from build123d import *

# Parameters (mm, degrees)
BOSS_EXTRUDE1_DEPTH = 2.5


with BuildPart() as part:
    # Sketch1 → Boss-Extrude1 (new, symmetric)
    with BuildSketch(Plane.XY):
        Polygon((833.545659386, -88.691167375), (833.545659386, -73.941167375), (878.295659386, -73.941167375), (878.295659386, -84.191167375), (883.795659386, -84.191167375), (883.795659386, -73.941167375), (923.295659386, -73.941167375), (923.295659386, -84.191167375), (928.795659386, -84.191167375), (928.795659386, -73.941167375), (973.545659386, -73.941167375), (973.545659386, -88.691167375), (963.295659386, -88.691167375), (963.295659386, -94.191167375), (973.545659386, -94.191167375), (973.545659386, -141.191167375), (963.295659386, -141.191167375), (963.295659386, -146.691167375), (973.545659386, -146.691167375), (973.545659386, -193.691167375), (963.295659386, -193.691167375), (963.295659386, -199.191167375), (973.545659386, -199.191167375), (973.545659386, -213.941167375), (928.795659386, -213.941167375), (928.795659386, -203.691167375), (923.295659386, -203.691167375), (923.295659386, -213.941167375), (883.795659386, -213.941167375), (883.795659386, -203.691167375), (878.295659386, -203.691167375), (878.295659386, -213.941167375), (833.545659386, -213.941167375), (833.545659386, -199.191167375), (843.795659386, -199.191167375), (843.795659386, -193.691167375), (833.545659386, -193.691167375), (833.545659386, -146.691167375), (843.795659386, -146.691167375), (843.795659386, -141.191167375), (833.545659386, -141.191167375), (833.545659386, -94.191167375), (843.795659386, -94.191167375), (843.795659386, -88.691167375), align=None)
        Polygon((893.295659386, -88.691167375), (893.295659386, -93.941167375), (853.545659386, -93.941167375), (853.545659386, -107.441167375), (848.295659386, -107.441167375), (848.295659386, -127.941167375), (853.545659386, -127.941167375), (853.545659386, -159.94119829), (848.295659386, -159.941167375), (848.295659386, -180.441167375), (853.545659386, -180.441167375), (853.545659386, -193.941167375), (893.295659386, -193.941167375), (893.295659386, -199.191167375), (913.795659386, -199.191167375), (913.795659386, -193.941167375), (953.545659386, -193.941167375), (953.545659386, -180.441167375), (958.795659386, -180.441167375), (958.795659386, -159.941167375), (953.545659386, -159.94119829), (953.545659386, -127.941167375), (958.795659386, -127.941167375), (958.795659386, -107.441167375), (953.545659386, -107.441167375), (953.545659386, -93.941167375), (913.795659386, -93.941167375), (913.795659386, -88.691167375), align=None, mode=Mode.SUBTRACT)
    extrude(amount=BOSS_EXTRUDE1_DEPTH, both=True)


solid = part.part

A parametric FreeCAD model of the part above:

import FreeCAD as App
import Part
import Sketcher

V = App.Vector
Q = App.Units.Quantity


def add_polygon(sketch, points):
    """Adds a closed chain of lines whose ends are joined by coincident constraints."""
    first, n = sketch.GeometryCount, len(points)
    for a, b in zip(points, points[1:] + points[:1]):
        sketch.addGeometry(Part.LineSegment(App.Vector(*a, 0), App.Vector(*b, 0)), False)
    for i in range(n):
        sketch.addConstraint(Sketcher.Constraint("Coincident", first + i, 2, first + (i + 1) % n, 1))

doc = App.newDocument("Part")
body = doc.addObject("PartDesign::Body", "Body")

# Sketch on XY plane
sketch1 = body.newObject("Sketcher::SketchObject", "Sketch")
sketch1.AttachmentSupport = (doc.getObject("XY_Plane"), [""])
sketch1.MapMode = "FlatFace"
add_polygon(sketch1, [(834, -74), (834, -89), (844, -89), (844, -94), (834, -94), (834, -141), (844, -141), (844, -147), (834, -147), (834, -194), (844, -194), (844, -199), (834, -199), (834, -214), (878, -214), (878, -204), (884, -204), (884, -214), (923, -214), (923, -204), (929, -204), (929, -214), (974, -214), (974, -199), (963, -199), (963, -194), (974, -194), (974, -147), (963, -147), (963, -141), (974, -141), (974, -94), (963, -94), (963, -89), (974, -89), (974, -74), (929, -74), (929, -84), (923, -84), (923, -74), (884, -74), (884, -84), (878, -84), (878, -74)])  # lines 0-43
add_polygon(sketch1, [(893, -89), (914, -89), (914, -94), (954, -94), (954, -107), (959, -107), (959, -128), (954, -128), (954, -160), (959, -160), (959, -180), (954, -180), (954, -194), (914, -194), (914, -199), (893, -199), (893, -194), (854, -194), (854, -180), (848, -180), (848, -160), (854, -160), (854, -128), (848, -128), (848, -107), (854, -107), (854, -94), (893, -94)])  # lines 44-71
sketch1.addConstraint([
    Sketcher.Constraint("Vertical", 0),
    Sketcher.Constraint("Horizontal", 1),
    Sketcher.Constraint("Vertical", 2),
    Sketcher.Constraint("Horizontal", 3),
    Sketcher.Constraint("Vertical", 4),
    Sketcher.Constraint("Horizontal", 5),
    Sketcher.Constraint("Vertical", 6),
    Sketcher.Constraint("Horizontal", 7),
    Sketcher.Constraint("Vertical", 8),
    Sketcher.Constraint("Horizontal", 9),
    Sketcher.Constraint("Vertical", 10),
    Sketcher.Constraint("Horizontal", 11),
    Sketcher.Constraint("Vertical", 12),
    Sketcher.Constraint("Horizontal", 13),
    Sketcher.Constraint("Vertical", 14),
    Sketcher.Constraint("Horizontal", 15),
    Sketcher.Constraint("Vertical", 16),
    Sketcher.Constraint("Horizontal", 17),
    Sketcher.Constraint("Vertical", 18),
    Sketcher.Constraint("Horizontal", 19),
    Sketcher.Constraint("Vertical", 20),
    Sketcher.Constraint("Horizontal", 21),
    Sketcher.Constraint("Vertical", 22),
    Sketcher.Constraint("Horizontal", 23),
    Sketcher.Constraint("Vertical", 24),
    Sketcher.Constraint("Horizontal", 25),
    Sketcher.Constraint("Vertical", 26),
    Sketcher.Constraint("Horizontal", 27),
    Sketcher.Constraint("Vertical", 28),
    Sketcher.Constraint("Horizontal", 29),
    Sketcher.Constraint("Vertical", 30),
    Sketcher.Constraint("Horizontal", 31),
    Sketcher.Constraint("Vertical", 32),
    Sketcher.Constraint("Horizontal", 33),
    Sketcher.Constraint("Vertical", 34),
    Sketcher.Constraint("Horizontal", 35),
    Sketcher.Constraint("Vertical", 36),
    Sketcher.Constraint("Horizontal", 37),
    Sketcher.Constraint("Vertical", 38),
    Sketcher.Constraint("Horizontal", 39),
    Sketcher.Constraint("Vertical", 40),
    Sketcher.Constraint("Horizontal", 41),
    Sketcher.Constraint("Vertical", 42),
    Sketcher.Constraint("Horizontal", 43),
    Sketcher.Constraint("Horizontal", 44),
    Sketcher.Constraint("Vertical", 45),
    Sketcher.Constraint("Horizontal", 46),
    Sketcher.Constraint("Vertical", 47),
    Sketcher.Constraint("Horizontal", 48),
    Sketcher.Constraint("Vertical", 49),
    Sketcher.Constraint("Horizontal", 50),
    Sketcher.Constraint("Vertical", 51),
    Sketcher.Constraint("Vertical", 53),
    Sketcher.Constraint("Horizontal", 54),
    Sketcher.Constraint("Vertical", 55),
    Sketcher.Constraint("Horizontal", 56),
    Sketcher.Constraint("Vertical", 57),
    Sketcher.Constraint("Horizontal", 58),
    Sketcher.Constraint("Vertical", 59),
    Sketcher.Constraint("Horizontal", 60),
    Sketcher.Constraint("Vertical", 61),
    Sketcher.Constraint("Horizontal", 62),
    Sketcher.Constraint("Vertical", 63),
    Sketcher.Constraint("Vertical", 65),
    Sketcher.Constraint("Horizontal", 66),
    Sketcher.Constraint("Vertical", 67),
    Sketcher.Constraint("Horizontal", 68),
    Sketcher.Constraint("Vertical", 69),
    Sketcher.Constraint("Horizontal", 70),
    Sketcher.Constraint("Vertical", 71),
    Sketcher.Constraint("Horizontal", 13, 2, 16, 2),
    Sketcher.Constraint("Horizontal", 15, 2, 18, 2),
    Sketcher.Constraint("Horizontal", 17, 2, 20, 2),
    Sketcher.Constraint("Horizontal", 11, 2, 22, 2),
    Sketcher.Constraint("Horizontal", 9, 2, 24, 2),
    Sketcher.Constraint("Horizontal", 7, 2, 26, 2),
    Sketcher.Constraint("Horizontal", 5, 2, 28, 2),
    Sketcher.Constraint("Horizontal", 3, 2, 30, 2),
    Sketcher.Constraint("Horizontal", 1, 2, 32, 2),
    Sketcher.Constraint("Horizontal", 35, 2, 38, 2),
    Sketcher.Constraint("Horizontal", 37, 2, 40, 2),
    Sketcher.Constraint("Horizontal", 39, 2, 42, 2),
    Sketcher.Constraint("Horizontal", 33, 2, 44, 2),
    Sketcher.Constraint("Horizontal", 23, 2, 57, 2),
    Sketcher.Constraint("Horizontal", 56, 2, 59, 2),
    Sketcher.Constraint("Horizontal", 54, 2, 61, 2),
    Sketcher.Constraint("Horizontal", 52, 2, 63, 2),
    Sketcher.Constraint("Horizontal", 51, 2, 64, 2),
    Sketcher.Constraint("Horizontal", 50, 2, 65, 2),
    Sketcher.Constraint("Horizontal", 48, 2, 67, 2),
    Sketcher.Constraint("Horizontal", 46, 2, 69, 2),
    Sketcher.Constraint("Vertical", 0, 2, 3, 2),
    Sketcher.Constraint("Vertical", 2, 2, 5, 2),
    Sketcher.Constraint("Vertical", 4, 2, 7, 2),
    Sketcher.Constraint("Vertical", 6, 2, 9, 2),
    Sketcher.Constraint("Vertical", 8, 2, 11, 2),
    Sketcher.Constraint("Vertical", 22, 2, 25, 2),
    Sketcher.Constraint("Vertical", 24, 2, 27, 2),
    Sketcher.Constraint("Vertical", 26, 2, 29, 2),
    Sketcher.Constraint("Vertical", 28, 2, 31, 2),
    Sketcher.Constraint("Vertical", 30, 2, 33, 2),
    Sketcher.Constraint("Vertical", 20, 2, 35, 2),
    Sketcher.Constraint("Vertical", 18, 2, 37, 2),
    Sketcher.Constraint("Vertical", 16, 2, 39, 2),
    Sketcher.Constraint("Vertical", 14, 2, 41, 2),
    Sketcher.Constraint("Vertical", 47, 2, 50, 2),
    Sketcher.Constraint("Vertical", 49, 2, 52, 2),
    Sketcher.Constraint("Vertical", 51, 2, 54, 2),
    Sketcher.Constraint("Vertical", 45, 2, 56, 2),
    Sketcher.Constraint("Vertical", 61, 2, 64, 2),
    Sketcher.Constraint("Vertical", 63, 2, 66, 2),
    Sketcher.Constraint("Vertical", 65, 2, 68, 2),
    Sketcher.Constraint("Vertical", 59, 2, 70, 2),
    Sketcher.Constraint("Equal", 15, 19),
    Sketcher.Constraint("Equal", 13, 21),
    Sketcher.Constraint("Equal", 11, 23),
    Sketcher.Constraint("Equal", 56, 60),
    Sketcher.Constraint("Equal", 54, 62),
    Sketcher.Constraint("Equal", 41, 2),
    Sketcher.Constraint("Equal", 2, 6),
    Sketcher.Constraint("Equal", 4, 8),
    Sketcher.Constraint("Equal", 6, 10),
    Sketcher.Constraint("Equal", 0, 12),
    Sketcher.Constraint("Equal", 33, 14),
    Sketcher.Constraint("Equal", 20, 36),
    Sketcher.Constraint("Equal", 68, 45),
    Sketcher.Constraint("Equal", 58, 49),
    Sketcher.Constraint("Equal", 49, 53),
    Sketcher.Constraint("Equal", 47, 55),
    Sketcher.Constraint("Equal", 45, 57),
    Sketcher.Constraint("DistanceY", 4, 2, 4, 1, Q("47 mm")),
    Sketcher.Constraint("DistanceX", 15, 1, 15, 2, Q("5.5 mm")),
    Sketcher.Constraint("DistanceX", 17, 1, 17, 2, Q("39.5 mm")),
    Sketcher.Constraint("DistanceX", 44, 1, 44, 2, Q("20.5 mm")),
    Sketcher.Constraint("DistanceY", 47, 2, 47, 1, Q("13.5 mm")),
    Sketcher.Constraint("DistanceX", 1, 1, 1, 2, Q("10.25 mm")),
    Sketcher.Constraint("DistanceX", 13, 1, 13, 2, Q("44.75 mm")),
    Sketcher.Constraint("DistanceX", 46, 1, 46, 2, Q("39.75 mm")),
    Sketcher.Constraint("DistanceX", 48, 1, 48, 2, Q("5.25 mm")),
    Sketcher.Constraint("DistanceY", 0, 2, 0, 1, Q("14.75 mm")),
    Sketcher.Constraint("DistanceY", 51, 2, 51, 1, Q("32.000031 mm")),
    Sketcher.Constraint("DistanceY", 51, 2, -1, 1, Q("159.941198 mm")),
    Sketcher.Constraint("DistanceX", -1, 1, 0, 2, Q("833.545659 mm")),
    Sketcher.Constraint("DistanceX", -1, 1, 44, 2, Q("913.795659 mm")),
])
pad1 = body.newObject("PartDesign::Pad", "Pad")
pad1.Profile = sketch1
pad1.Length = 5
pad1.Midplane = True

doc.recompute()
